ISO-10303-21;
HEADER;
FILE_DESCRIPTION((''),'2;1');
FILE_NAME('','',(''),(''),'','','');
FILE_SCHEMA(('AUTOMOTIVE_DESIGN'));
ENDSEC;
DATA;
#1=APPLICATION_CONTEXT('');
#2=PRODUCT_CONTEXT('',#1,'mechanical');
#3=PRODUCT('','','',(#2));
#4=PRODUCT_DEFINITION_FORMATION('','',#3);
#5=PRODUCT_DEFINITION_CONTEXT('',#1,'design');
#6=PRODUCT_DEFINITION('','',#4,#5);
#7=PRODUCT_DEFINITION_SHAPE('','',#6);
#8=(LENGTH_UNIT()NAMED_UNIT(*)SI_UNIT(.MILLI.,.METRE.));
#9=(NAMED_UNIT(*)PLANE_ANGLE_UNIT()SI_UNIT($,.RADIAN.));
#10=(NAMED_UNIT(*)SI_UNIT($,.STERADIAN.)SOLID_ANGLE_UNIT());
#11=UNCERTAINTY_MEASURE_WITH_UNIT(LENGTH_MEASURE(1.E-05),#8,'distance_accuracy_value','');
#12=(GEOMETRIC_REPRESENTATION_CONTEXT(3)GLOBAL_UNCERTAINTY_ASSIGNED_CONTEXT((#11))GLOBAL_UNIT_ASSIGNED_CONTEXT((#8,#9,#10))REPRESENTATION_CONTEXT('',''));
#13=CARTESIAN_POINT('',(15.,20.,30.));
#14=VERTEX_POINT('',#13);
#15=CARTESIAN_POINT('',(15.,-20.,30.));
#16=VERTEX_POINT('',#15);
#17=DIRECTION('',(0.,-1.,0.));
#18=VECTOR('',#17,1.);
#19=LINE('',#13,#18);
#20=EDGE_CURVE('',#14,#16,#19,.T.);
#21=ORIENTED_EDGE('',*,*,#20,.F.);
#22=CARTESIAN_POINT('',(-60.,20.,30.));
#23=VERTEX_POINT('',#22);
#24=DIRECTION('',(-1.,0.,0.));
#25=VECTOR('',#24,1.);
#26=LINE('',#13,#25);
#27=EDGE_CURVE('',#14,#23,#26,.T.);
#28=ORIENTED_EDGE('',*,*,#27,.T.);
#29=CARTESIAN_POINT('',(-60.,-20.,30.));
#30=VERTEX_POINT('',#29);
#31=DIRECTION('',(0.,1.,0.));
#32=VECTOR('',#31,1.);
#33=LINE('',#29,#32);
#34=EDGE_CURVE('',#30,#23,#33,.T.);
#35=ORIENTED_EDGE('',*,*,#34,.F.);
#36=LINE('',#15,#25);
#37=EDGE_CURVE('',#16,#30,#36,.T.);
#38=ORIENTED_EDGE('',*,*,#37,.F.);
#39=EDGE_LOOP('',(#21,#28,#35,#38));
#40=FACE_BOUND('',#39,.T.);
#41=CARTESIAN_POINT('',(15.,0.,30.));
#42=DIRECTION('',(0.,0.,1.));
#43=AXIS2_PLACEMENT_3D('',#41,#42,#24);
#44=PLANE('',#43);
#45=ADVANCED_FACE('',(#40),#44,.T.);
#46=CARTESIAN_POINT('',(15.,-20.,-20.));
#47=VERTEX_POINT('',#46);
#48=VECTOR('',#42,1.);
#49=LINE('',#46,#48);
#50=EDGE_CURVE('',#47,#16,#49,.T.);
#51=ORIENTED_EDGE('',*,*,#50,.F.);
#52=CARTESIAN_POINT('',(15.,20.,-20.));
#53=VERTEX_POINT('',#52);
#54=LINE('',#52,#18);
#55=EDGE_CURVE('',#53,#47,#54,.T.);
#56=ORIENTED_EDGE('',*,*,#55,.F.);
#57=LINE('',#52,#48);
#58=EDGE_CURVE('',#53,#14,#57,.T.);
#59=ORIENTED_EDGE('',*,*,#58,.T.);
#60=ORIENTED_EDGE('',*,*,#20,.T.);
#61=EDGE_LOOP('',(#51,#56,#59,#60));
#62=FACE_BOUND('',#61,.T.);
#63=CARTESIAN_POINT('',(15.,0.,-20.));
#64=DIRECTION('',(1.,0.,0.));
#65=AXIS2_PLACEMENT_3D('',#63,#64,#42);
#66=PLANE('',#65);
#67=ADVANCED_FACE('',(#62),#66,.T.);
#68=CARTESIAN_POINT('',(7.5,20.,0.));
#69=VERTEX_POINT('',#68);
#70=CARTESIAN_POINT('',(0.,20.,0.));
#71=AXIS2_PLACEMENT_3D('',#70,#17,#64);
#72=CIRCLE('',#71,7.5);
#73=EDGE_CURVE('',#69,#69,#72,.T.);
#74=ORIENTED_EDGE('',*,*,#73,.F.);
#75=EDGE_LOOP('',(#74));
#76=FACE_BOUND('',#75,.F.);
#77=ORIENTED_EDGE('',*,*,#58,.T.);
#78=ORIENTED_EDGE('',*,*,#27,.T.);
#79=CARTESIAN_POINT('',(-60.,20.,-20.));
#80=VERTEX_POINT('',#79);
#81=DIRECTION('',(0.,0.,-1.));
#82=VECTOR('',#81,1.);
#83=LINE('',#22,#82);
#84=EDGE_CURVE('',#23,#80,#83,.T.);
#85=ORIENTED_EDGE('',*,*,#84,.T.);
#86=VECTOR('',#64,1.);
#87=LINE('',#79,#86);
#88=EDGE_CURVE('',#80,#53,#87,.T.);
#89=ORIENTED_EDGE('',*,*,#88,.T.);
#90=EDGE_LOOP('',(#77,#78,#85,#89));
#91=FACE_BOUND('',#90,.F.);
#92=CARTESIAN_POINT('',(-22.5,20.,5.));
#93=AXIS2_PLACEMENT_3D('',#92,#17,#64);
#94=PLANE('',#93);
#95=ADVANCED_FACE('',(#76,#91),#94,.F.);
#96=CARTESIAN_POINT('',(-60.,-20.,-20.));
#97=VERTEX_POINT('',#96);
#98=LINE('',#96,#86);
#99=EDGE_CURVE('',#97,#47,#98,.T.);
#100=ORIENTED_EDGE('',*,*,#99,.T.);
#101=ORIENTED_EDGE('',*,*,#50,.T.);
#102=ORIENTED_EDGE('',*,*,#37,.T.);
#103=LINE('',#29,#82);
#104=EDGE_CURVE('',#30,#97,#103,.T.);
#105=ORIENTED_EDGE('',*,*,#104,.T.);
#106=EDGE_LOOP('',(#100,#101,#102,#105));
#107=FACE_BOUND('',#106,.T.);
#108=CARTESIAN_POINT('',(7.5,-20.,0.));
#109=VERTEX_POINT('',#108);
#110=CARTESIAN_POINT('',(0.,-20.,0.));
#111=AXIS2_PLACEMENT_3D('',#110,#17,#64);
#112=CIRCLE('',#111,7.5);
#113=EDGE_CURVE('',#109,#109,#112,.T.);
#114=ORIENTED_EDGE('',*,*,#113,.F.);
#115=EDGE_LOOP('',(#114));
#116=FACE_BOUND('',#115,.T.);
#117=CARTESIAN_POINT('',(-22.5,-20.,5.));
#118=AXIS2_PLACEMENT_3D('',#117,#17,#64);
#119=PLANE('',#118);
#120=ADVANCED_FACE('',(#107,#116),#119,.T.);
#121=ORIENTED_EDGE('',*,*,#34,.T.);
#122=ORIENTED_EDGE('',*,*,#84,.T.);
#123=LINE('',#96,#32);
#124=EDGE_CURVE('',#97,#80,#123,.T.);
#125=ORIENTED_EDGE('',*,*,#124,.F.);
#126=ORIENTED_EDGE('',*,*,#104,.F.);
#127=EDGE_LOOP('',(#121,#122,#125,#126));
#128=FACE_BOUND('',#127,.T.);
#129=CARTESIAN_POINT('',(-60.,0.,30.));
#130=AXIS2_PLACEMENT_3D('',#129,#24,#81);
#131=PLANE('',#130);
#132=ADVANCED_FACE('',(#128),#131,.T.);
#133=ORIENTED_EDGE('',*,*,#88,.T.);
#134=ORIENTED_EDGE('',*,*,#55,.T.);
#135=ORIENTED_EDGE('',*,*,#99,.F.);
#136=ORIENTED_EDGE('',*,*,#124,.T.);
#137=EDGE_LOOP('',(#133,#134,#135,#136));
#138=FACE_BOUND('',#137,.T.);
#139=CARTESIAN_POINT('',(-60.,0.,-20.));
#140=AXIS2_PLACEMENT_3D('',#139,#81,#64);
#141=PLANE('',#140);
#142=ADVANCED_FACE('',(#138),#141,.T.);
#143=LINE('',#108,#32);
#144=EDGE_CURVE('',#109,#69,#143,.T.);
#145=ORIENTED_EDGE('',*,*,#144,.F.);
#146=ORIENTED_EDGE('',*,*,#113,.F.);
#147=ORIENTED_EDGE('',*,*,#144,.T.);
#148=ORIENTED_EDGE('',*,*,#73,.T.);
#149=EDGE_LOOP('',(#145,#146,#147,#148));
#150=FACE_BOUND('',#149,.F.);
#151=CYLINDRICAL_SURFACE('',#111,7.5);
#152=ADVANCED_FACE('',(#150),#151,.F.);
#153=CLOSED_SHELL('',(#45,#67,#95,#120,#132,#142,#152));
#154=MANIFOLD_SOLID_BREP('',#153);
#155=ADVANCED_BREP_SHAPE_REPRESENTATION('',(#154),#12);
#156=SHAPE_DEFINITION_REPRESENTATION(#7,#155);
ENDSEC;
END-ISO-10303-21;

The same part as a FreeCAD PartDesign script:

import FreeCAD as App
import Part
import Sketcher
Q = App.Units.Quantity

doc = App.newDocument("Part")
body = doc.addObject("PartDesign::Body", "Body")

# Sketch on XZ plane
sketch1 = body.newObject("Sketcher::SketchObject", "Sketch")
sketch1.AttachmentSupport = (doc.getObject("XZ_Plane"), [""])
sketch1.MapMode = "FlatFace"
sketch1.addGeometry([
    Part.LineSegment(App.Vector(-60, -20, 0), App.Vector(15, -20, 0)),
    Part.LineSegment(App.Vector(15, -20, 0), App.Vector(15, 30, 0)),
    Part.LineSegment(App.Vector(15, 30, 0), App.Vector(-60, 30, 0)),
    Part.LineSegment(App.Vector(-60, 30, 0), App.Vector(-60, -20, 0)),
], False)
sketch1.addConstraint([
    Sketcher.Constraint("Coincident", 0, 2, 1, 1),
    Sketcher.Constraint("Coincident", 1, 2, 2, 1),
    Sketcher.Constraint("Coincident", 2, 2, 3, 1),
    Sketcher.Constraint("Coincident", 3, 2, 0, 1),
    Sketcher.Constraint("Horizontal", 0),
    Sketcher.Constraint("Vertical", 1),
    Sketcher.Constraint("Horizontal", 2),
    Sketcher.Constraint("Vertical", 3),
    Sketcher.Constraint("DistanceX", 0, 1, 0, 2, Q("75 mm")),
    Sketcher.Constraint("DistanceY", 1, 1, 1, 2, Q("50 mm")),
    Sketcher.Constraint("DistanceX", -1, 1, 0, 2, Q("15 mm")),
    Sketcher.Constraint("DistanceY", 0, 2, -1, 1, Q("20 mm")),
])
pad1 = body.newObject("PartDesign::Pad", "Pad")
pad1.Profile = sketch1
pad1.Length = 40
pad1.Midplane = True

# Sketch on XZ plane
sketch2 = body.newObject("Sketcher::SketchObject", "Sketch001")
sketch2.AttachmentSupport = (doc.getObject("XZ_Plane"), [""])
sketch2.MapMode = "FlatFace"
sketch2.AttachmentOffset = App.Placement(App.Vector(0, 0, 20), App.Rotation())
sketch2.addGeometry(Part.Circle(App.Vector(0, 0, 0), App.Vector(0, 0, 1), 8), False)
sketch2.addConstraint([
    Sketcher.Constraint("Coincident", 0, 3, -1, 1),
    Sketcher.Constraint("Diameter", 0, Q("15 mm")),
])
pocket1 = body.newObject("PartDesign::Pocket", "Pocket")
pocket1.Profile = sketch2
pocket1.Type = "ThroughAll"

doc.recompute()
